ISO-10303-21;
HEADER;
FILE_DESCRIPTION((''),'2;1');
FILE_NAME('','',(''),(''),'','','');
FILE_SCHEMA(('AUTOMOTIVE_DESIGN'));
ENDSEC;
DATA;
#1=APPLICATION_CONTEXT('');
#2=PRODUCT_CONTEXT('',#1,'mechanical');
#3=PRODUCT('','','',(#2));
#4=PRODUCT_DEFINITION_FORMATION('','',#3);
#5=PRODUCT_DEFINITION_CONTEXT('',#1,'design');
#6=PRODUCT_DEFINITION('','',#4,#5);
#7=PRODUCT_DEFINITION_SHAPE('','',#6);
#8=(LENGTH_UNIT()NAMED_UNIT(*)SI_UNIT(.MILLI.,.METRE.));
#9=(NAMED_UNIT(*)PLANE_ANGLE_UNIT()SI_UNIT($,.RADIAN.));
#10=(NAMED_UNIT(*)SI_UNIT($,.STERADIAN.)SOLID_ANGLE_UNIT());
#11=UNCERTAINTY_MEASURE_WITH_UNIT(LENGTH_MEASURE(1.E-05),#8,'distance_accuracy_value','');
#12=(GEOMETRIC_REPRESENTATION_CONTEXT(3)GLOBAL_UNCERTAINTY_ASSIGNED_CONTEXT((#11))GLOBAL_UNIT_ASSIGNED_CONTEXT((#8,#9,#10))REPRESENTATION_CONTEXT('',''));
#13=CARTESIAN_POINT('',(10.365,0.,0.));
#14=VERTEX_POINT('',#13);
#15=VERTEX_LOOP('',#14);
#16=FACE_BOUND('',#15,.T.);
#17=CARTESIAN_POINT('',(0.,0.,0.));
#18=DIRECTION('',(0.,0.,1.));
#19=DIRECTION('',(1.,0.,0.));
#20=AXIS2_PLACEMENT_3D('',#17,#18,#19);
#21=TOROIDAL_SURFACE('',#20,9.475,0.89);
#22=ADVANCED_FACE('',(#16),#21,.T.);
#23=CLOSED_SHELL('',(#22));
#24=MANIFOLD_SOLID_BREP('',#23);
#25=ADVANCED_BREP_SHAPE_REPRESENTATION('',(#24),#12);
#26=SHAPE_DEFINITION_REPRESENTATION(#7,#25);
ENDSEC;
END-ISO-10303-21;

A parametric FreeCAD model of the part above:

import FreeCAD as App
import Part
import Sketcher

V = App.Vector
Q = App.Units.Quantity

doc = App.newDocument("Part")
body = doc.addObject("PartDesign::Body", "Body")

sketch1 = body.newObject("Sketcher::SketchObject", "Sketch")
sketch1.AttachmentSupport = (doc.getObject("YZ_Plane"), [""])
sketch1.MapMode = "FlatFace"
sketch1.addGeometry(Part.Circle(V(9.475, 0, 0), V(0, 0, 1), 0.89), False)
sketch1.addConstraint([
    Sketcher.Constraint("PointOnObject", 0, 3, -1),
    Sketcher.Constraint("Diameter", 0, Q("1.78 mm")),
    Sketcher.Constraint("DistanceX", -1, 1, 0, 3, Q("9.475 mm")),
])
revolution = body.newObject("PartDesign::Revolution", "Revolution")
revolution.Profile = sketch1
revolution.ReferenceAxis = (sketch1, ["V_Axis"])
revolution.Angle = 360

doc.recompute()
